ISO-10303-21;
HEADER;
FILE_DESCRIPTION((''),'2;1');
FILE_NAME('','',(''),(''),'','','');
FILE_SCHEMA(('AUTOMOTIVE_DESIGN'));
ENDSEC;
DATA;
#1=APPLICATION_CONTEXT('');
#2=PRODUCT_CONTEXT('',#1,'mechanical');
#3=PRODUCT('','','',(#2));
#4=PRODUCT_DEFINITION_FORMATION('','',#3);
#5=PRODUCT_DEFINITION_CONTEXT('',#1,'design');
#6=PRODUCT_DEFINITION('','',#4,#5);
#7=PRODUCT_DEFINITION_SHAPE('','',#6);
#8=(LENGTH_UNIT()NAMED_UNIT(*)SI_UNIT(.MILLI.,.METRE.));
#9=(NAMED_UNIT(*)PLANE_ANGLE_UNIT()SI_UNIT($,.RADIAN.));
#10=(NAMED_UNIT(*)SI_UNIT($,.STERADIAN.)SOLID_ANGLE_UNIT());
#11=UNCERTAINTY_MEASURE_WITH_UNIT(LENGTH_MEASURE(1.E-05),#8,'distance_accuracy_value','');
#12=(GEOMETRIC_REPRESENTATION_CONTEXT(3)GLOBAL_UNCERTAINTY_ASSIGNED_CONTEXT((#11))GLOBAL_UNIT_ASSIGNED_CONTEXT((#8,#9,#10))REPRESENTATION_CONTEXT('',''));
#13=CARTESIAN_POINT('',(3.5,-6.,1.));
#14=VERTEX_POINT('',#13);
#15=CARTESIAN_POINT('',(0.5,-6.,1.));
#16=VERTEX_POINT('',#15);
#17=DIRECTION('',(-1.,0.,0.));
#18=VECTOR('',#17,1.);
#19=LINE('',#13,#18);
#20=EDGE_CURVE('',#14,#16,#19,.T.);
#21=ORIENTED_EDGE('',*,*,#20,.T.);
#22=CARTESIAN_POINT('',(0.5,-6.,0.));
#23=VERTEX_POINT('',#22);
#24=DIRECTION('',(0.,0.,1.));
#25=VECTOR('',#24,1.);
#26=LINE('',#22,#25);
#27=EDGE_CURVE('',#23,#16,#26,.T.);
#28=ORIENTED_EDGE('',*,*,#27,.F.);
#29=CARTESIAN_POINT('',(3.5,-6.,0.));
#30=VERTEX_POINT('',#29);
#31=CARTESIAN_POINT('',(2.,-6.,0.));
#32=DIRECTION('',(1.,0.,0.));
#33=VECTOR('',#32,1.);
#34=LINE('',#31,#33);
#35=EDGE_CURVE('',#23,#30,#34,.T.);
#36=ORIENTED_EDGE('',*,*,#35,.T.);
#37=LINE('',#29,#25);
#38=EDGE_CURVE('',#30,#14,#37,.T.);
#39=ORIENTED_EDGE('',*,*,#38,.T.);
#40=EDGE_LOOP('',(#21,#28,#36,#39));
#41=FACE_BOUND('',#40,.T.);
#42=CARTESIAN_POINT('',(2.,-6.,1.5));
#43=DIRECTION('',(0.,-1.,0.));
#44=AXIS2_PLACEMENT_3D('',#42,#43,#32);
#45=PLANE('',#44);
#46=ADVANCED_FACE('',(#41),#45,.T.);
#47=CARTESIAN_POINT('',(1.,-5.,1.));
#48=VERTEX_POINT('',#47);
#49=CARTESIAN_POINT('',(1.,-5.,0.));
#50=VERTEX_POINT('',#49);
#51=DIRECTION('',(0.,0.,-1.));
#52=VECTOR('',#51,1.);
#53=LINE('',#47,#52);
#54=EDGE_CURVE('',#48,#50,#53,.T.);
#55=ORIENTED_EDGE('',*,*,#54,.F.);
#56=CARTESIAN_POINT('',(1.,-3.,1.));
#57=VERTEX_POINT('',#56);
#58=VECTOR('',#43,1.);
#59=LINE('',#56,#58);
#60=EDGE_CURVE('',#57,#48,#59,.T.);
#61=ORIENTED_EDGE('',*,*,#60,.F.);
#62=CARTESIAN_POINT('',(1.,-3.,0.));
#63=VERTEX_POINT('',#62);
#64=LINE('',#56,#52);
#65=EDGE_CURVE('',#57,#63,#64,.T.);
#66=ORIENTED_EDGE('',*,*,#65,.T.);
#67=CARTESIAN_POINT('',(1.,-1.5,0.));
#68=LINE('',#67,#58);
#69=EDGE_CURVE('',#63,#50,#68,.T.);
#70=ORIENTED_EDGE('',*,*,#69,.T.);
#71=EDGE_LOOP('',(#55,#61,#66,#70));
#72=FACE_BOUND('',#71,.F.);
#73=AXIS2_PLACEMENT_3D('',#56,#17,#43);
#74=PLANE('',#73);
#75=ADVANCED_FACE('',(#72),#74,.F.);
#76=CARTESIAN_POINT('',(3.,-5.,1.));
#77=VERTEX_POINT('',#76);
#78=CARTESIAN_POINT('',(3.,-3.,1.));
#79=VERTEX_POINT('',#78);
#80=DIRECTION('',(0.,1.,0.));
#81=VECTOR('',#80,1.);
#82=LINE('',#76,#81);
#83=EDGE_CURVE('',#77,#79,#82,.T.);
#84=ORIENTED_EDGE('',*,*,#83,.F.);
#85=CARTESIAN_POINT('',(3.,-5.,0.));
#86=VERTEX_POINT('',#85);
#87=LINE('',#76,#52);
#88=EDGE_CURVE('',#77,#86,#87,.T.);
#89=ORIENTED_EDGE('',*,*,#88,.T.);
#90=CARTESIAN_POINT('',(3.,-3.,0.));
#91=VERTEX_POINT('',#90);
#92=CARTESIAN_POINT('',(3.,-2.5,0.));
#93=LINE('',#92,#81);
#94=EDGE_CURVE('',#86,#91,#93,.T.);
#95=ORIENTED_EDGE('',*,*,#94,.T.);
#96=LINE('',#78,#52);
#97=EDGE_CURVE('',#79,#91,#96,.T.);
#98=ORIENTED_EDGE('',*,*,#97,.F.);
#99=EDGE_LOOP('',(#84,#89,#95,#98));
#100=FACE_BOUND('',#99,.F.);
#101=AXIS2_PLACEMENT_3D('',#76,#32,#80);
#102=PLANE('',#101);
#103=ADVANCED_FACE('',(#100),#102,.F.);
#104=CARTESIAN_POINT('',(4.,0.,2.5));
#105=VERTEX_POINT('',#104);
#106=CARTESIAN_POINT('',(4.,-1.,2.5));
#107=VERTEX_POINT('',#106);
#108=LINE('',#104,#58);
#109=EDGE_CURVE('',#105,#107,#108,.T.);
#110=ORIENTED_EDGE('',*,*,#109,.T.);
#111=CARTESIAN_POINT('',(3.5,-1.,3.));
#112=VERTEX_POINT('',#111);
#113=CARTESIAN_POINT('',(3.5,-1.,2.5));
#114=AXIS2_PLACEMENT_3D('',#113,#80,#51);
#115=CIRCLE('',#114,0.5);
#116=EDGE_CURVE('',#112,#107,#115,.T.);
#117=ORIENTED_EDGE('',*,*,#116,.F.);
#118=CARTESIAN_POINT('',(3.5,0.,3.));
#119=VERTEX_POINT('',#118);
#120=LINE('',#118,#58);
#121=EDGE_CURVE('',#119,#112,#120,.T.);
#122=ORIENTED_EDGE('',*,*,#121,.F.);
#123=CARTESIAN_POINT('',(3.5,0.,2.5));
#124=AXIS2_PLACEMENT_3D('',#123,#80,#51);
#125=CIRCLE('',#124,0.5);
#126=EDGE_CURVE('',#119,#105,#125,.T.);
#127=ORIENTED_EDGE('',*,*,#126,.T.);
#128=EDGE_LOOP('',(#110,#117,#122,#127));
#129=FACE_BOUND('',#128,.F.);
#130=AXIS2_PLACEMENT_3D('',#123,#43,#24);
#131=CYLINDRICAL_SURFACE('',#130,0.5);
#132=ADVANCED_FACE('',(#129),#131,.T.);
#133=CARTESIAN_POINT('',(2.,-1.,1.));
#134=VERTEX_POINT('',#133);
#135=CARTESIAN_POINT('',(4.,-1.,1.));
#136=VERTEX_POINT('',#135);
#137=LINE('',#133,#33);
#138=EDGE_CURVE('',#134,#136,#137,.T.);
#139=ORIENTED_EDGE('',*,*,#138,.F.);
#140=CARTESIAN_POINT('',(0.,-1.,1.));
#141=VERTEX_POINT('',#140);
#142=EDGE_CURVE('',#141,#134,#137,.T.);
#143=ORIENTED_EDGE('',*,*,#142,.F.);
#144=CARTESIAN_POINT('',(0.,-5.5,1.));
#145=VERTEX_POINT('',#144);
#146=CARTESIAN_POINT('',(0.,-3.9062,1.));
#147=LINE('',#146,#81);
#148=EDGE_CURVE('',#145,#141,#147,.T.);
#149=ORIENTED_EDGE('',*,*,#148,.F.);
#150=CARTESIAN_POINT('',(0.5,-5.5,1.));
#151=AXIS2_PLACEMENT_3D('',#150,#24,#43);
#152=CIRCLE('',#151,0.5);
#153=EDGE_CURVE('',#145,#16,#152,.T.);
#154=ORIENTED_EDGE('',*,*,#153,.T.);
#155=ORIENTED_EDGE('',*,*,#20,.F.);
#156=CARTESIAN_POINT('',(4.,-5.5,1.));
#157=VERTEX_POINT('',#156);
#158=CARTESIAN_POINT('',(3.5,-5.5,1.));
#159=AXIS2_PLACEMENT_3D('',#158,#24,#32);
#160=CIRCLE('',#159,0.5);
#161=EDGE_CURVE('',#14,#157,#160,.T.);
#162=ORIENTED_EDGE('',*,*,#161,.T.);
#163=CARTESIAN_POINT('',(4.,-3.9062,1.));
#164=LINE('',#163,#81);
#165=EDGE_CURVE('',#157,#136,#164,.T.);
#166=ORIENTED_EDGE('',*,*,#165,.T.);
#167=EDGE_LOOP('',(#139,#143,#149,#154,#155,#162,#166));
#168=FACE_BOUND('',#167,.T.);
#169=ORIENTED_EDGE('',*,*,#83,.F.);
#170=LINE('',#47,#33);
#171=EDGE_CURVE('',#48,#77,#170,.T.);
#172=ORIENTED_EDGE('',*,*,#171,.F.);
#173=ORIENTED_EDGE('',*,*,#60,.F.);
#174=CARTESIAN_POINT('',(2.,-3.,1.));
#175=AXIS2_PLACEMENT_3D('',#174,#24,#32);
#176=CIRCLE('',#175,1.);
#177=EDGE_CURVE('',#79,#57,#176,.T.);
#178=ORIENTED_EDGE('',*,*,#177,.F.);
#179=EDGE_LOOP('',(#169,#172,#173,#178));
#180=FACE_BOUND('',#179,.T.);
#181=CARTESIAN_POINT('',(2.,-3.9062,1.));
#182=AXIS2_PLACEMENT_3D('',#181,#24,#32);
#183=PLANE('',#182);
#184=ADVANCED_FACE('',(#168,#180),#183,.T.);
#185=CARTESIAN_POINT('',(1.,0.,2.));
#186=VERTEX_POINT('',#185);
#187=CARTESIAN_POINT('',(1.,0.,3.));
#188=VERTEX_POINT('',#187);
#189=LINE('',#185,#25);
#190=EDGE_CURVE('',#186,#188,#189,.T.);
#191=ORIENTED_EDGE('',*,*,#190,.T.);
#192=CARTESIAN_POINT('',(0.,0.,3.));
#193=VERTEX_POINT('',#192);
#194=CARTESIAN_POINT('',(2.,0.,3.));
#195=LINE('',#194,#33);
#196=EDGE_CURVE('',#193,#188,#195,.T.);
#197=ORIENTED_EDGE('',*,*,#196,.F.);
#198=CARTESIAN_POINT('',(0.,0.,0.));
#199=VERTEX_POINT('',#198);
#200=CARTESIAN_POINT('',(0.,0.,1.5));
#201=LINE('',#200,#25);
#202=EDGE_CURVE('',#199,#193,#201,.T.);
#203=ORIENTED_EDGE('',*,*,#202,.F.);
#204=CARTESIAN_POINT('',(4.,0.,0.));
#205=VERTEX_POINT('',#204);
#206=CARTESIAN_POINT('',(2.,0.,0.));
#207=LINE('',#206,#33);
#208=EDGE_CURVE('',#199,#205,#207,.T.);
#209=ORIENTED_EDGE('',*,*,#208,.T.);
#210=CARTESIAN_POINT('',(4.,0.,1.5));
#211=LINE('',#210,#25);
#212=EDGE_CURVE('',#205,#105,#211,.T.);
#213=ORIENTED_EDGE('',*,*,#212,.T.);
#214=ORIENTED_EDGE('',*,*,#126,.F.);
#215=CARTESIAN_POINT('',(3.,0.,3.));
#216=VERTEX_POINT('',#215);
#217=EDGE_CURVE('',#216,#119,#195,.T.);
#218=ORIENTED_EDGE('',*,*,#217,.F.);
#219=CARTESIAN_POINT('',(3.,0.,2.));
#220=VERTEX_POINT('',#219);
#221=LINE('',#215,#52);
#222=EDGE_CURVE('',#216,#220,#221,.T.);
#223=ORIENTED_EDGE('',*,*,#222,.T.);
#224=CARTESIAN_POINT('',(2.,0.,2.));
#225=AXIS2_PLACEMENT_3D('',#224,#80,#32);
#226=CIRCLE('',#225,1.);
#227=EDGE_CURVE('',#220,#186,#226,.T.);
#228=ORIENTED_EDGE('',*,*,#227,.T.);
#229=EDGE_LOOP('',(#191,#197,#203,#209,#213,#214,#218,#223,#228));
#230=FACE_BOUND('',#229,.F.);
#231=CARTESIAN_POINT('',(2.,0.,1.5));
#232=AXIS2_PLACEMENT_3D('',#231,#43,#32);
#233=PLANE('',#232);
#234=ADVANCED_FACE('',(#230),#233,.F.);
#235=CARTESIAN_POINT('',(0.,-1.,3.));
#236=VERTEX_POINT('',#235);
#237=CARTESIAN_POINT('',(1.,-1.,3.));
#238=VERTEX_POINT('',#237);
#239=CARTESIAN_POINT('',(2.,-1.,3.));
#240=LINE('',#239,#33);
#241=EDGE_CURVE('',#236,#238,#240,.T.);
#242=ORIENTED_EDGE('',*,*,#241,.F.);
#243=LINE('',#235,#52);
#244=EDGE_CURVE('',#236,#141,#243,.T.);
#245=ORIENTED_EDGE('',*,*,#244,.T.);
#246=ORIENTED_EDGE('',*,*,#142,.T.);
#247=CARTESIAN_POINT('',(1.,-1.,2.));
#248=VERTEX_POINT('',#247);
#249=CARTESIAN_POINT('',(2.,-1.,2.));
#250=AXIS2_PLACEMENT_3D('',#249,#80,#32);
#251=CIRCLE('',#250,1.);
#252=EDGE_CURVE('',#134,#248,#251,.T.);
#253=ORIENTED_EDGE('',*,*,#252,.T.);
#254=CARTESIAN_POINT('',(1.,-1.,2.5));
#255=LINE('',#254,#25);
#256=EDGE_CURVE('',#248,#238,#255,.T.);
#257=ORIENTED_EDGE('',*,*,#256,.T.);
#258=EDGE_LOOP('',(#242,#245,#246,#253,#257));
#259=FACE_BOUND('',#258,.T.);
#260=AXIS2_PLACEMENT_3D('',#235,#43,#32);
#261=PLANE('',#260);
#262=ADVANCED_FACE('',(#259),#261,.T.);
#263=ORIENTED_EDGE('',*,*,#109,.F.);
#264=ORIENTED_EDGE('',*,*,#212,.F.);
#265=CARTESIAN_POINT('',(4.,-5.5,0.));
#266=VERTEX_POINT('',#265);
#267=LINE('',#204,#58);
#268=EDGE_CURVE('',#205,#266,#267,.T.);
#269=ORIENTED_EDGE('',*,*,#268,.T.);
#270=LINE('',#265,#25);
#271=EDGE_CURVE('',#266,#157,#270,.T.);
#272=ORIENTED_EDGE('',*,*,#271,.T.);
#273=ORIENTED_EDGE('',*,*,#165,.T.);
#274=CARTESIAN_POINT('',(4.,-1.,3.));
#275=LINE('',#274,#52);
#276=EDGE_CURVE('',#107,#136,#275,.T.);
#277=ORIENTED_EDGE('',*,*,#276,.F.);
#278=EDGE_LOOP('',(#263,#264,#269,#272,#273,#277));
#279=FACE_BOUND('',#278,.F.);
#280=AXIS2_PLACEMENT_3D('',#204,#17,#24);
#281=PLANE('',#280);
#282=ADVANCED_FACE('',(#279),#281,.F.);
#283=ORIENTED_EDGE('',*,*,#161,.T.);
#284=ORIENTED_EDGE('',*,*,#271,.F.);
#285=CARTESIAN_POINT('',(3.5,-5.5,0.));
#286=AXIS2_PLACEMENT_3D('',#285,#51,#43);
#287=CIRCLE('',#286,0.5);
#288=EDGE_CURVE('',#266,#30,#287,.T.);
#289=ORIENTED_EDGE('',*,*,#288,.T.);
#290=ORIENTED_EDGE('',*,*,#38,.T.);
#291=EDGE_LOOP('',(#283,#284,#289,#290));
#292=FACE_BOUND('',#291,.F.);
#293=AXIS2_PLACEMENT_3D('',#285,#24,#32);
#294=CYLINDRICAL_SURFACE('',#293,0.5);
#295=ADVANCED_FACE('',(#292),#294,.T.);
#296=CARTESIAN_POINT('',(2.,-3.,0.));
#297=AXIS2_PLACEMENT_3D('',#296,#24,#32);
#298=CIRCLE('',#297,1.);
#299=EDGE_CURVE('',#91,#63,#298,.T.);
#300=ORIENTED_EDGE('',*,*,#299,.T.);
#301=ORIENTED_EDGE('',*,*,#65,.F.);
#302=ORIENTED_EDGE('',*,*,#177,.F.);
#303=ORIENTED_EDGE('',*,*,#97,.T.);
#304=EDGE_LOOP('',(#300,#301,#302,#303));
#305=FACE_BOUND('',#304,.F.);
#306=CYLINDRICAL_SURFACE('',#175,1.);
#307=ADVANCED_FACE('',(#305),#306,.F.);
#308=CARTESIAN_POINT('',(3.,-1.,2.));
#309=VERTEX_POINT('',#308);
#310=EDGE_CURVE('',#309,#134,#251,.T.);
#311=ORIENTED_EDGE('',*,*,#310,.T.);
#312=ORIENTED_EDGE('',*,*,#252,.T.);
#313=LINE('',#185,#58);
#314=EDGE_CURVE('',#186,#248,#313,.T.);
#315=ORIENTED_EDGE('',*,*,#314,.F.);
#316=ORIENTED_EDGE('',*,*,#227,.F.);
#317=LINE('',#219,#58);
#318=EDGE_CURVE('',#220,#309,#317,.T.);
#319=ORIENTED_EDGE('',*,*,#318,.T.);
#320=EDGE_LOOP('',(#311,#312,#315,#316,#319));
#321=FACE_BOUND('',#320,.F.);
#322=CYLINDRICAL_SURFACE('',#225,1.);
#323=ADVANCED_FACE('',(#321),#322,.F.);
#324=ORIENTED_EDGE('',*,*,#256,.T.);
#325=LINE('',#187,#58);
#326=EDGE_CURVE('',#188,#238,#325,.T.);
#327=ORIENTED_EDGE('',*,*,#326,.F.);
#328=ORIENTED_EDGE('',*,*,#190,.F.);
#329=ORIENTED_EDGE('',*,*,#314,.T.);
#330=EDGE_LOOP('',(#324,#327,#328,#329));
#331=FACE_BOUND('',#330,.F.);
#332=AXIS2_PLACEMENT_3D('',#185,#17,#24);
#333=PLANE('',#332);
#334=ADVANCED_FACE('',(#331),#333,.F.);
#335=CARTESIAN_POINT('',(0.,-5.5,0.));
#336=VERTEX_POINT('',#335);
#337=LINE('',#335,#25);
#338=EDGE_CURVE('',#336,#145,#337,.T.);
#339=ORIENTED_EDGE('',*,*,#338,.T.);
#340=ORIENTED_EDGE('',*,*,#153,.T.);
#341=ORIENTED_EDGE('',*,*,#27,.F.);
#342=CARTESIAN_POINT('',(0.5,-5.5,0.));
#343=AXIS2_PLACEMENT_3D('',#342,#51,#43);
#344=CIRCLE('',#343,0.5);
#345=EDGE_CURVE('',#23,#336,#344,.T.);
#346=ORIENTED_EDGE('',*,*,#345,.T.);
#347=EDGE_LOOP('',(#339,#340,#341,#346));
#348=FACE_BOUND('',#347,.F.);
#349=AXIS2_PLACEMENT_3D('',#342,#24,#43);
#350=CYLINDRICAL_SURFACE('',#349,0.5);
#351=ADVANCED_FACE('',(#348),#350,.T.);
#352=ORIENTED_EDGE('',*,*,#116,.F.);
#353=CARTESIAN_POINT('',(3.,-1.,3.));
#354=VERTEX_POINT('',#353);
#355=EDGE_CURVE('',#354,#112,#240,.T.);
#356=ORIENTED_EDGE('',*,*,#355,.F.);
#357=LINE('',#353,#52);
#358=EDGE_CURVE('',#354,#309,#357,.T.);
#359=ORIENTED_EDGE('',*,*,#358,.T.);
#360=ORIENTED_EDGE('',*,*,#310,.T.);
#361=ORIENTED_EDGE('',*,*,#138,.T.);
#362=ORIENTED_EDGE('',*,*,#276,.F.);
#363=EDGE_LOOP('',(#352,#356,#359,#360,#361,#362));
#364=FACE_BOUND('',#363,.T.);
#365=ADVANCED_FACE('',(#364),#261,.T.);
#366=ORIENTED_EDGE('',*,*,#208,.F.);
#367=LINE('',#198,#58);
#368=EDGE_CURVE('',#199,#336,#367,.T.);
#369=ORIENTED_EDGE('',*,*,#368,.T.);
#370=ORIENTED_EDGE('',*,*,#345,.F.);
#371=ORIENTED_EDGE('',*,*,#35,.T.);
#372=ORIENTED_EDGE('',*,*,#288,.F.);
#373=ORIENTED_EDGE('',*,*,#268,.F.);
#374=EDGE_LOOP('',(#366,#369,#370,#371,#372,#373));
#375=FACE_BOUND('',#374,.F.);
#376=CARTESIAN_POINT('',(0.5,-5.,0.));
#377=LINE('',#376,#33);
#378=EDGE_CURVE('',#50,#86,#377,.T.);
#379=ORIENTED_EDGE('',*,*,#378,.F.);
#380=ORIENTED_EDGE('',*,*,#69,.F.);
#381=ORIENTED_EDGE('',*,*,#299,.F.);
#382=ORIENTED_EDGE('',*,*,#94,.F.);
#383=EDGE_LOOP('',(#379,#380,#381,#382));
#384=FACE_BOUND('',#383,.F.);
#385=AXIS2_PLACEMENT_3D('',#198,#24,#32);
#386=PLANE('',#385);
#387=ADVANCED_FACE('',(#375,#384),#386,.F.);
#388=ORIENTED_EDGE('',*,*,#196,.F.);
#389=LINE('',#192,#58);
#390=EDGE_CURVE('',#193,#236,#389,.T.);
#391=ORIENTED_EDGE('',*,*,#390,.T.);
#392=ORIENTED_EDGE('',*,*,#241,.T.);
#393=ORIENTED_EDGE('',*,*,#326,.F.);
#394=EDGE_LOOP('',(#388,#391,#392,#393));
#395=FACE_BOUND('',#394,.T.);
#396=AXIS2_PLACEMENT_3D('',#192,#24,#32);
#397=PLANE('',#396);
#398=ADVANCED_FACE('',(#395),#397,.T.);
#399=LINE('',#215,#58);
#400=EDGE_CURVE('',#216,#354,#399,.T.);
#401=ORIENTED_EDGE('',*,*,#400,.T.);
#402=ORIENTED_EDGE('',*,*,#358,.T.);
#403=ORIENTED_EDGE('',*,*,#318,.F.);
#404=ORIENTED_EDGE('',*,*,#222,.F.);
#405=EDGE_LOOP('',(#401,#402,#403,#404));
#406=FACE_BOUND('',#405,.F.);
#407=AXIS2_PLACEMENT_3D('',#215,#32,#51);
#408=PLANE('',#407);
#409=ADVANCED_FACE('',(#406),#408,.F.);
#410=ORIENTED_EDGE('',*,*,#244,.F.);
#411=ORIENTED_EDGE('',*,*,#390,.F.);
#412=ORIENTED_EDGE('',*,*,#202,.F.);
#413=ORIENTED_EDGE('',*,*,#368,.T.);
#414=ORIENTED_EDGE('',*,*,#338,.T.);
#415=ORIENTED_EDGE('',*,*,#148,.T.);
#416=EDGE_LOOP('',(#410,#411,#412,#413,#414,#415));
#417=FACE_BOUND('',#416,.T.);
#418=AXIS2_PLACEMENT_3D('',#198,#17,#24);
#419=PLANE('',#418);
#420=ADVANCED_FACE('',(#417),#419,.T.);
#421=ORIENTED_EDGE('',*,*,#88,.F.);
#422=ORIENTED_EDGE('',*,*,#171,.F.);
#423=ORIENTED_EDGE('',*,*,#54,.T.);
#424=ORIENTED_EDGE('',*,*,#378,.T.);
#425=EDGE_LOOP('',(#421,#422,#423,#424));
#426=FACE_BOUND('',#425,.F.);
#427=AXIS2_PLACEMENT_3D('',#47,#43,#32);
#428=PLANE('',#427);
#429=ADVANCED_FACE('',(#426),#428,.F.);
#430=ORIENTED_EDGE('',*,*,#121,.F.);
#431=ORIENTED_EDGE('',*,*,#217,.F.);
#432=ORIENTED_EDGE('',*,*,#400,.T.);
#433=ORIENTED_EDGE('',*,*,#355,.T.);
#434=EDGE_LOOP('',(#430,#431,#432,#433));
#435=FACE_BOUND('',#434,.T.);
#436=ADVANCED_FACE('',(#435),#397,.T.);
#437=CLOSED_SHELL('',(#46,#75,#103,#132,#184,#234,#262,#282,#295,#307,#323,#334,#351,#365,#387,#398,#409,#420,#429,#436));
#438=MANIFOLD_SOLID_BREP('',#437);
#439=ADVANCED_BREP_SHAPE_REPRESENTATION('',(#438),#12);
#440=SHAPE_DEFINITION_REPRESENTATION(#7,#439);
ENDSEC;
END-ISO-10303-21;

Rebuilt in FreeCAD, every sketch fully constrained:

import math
import FreeCAD as App
import Part
import Sketcher
Q = App.Units.Quantity


def edges_at(feature, points):
    """Names of the edges that pass closest to the given points."""
    edges = feature.Shape.Edges
    near = lambda p: min(range(len(edges)), key=lambda i: edges[i].distToShape(Part.Vertex(*p))[0])
    return sorted({f"Edge{near(p) + 1}" for p in points})

doc = App.newDocument("Part")
body = doc.addObject("PartDesign::Body", "Body")

# Sketch on XZ plane
sketch1 = body.newObject("Sketcher::SketchObject", "Sketch")
sketch1.AttachmentSupport = (doc.getObject("XZ_Plane"), [""])
sketch1.MapMode = "FlatFace"
sketch1.addGeometry([
    Part.LineSegment(App.Vector(0, 3, 0), App.Vector(0, 0, 0)),
    Part.LineSegment(App.Vector(0, 0, 0), App.Vector(4, 0, 0)),
    Part.LineSegment(App.Vector(4, 0, 0), App.Vector(4, 3, 0)),
    Part.LineSegment(App.Vector(4, 3, 0), App.Vector(0, 3, 0)),
], False)
sketch1.addConstraint([
    Sketcher.Constraint("Coincident", 0, 2, 1, 1),
    Sketcher.Constraint("Coincident", 1, 2, 2, 1),
    Sketcher.Constraint("Coincident", 2, 2, 3, 1),
    Sketcher.Constraint("Coincident", 3, 2, 0, 1),
    Sketcher.Constraint("Vertical", 0),
    Sketcher.Constraint("Horizontal", 1),
    Sketcher.Constraint("Vertical", 2),
    Sketcher.Constraint("Horizontal", 3),
    Sketcher.Constraint("Coincident", 0, 2, -1, 1),
    Sketcher.Constraint("DistanceX", 1, 1, 1, 2, Q("4 mm")),
    Sketcher.Constraint("DistanceY", 0, 2, 0, 1, Q("3 mm")),
])
pad1 = body.newObject("PartDesign::Pad", "Pad")
pad1.Profile = sketch1
pad1.Length = 6
doc.recompute()

fillet = body.newObject("PartDesign::Fillet", "Fillet")
fillet.Base = (pad1, edges_at(pad1, [(4, -6, 1.5)]))
fillet.Radius = 0.5
doc.recompute()

fillet2 = body.newObject("PartDesign::Fillet", "Fillet001")
fillet2.Base = (fillet, edges_at(fillet, [(0, -6, 1.5)]))
fillet2.Radius = 0.5

# Sketch on XZ plane
sketch2 = body.newObject("Sketcher::SketchObject", "Sketch001")
sketch2.AttachmentSupport = (doc.getObject("XZ_Plane"), [""])
sketch2.MapMode = "FlatFace"
sketch2.addGeometry([
    Part.LineSegment(App.Vector(3, 3, 0), App.Vector(3, 2, 0)),
    Part.ArcOfCircle(Part.Circle(App.Vector(2, 2, 0), App.Vector(0, 0, 1), 1), math.radians(180), math.radians(360)),
    Part.LineSegment(App.Vector(1, 2, 0), App.Vector(1, 3, 0)),
    Part.LineSegment(App.Vector(1, 3, 0), App.Vector(3, 3, 0)),
], False)
sketch2.addConstraint([
    Sketcher.Constraint("Tangent", 0, 2, 1, 2),
    Sketcher.Constraint("Tangent", 1, 1, 2, 1),
    Sketcher.Constraint("Coincident", 2, 2, 3, 1),
    Sketcher.Constraint("Coincident", 3, 2, 0, 1),
    Sketcher.Constraint("Vertical", 0),
    Sketcher.Constraint("Vertical", 2),
    Sketcher.Constraint("Horizontal", 3),
    Sketcher.Constraint("Radius", 1, Q("1 mm")),
    Sketcher.Constraint("DistanceY", 0, 2, 0, 1, Q("1 mm")),
    Sketcher.Constraint("DistanceX", -1, 1, 1, 3, Q("2 mm")),
    Sketcher.Constraint("DistanceY", -1, 1, 1, 3, Q("2 mm")),
])
pocket1 = body.newObject("PartDesign::Pocket", "Pocket")
pocket1.Profile = sketch2
pocket1.Length = 25
pocket1.Reversed = True

# Sketch on XY plane
sketch3 = body.newObject("Sketcher::SketchObject", "Sketch002")
sketch3.AttachmentSupport = (doc.getObject("XY_Plane"), [""])
sketch3.MapMode = "FlatFace"
sketch3.AttachmentOffset = App.Placement(App.Vector(0, 0, 3), App.Rotation())
sketch3.addGeometry([
    Part.LineSegment(App.Vector(0, -1, 0), App.Vector(0, -6.8, 0)),
    Part.LineSegment(App.Vector(0, -6.8, 0), App.Vector(4, -6.8, 0)),
    Part.LineSegment(App.Vector(4, -6.8, 0), App.Vector(4, -1, 0)),
    Part.LineSegment(App.Vector(4, -1, 0), App.Vector(0, -1, 0)),
], False)
sketch3.addConstraint([
    Sketcher.Constraint("Coincident", 0, 2, 1, 1),
    Sketcher.Constraint("Coincident", 1, 2, 2, 1),
    Sketcher.Constraint("Coincident", 2, 2, 3, 1),
    Sketcher.Constraint("Coincident", 3, 2, 0, 1),
    Sketcher.Constraint("Vertical", 0),
    Sketcher.Constraint("Horizontal", 1),
    Sketcher.Constraint("Vertical", 2),
    Sketcher.Constraint("Horizontal", 3),
    Sketcher.Constraint("PointOnObject", 0, 2, -2),
    Sketcher.Constraint("DistanceX", 1, 1, 1, 2, Q("4 mm")),
    Sketcher.Constraint("DistanceY", 2, 2, -1, 1, Q("1 mm")),
    Sketcher.Constraint("DistanceY", 0, 2, 0, 1, Q("5.8124 mm")),
])
pocket2 = body.newObject("PartDesign::Pocket", "Pocket001")
pocket2.Profile = sketch3
pocket2.Length = 2
doc.recompute()

fillet3 = body.newObject("PartDesign::Fillet", "Fillet002")
fillet3.Base = (pocket2, edges_at(pocket2, [(4, -0.5, 3)]))
fillet3.Radius = 0.5

# Sketch on XY plane
sketch4 = body.newObject("Sketcher::SketchObject", "Sketch003")
sketch4.AttachmentSupport = (doc.getObject("XY_Plane"), [""])
sketch4.MapMode = "FlatFace"
sketch4.AttachmentOffset = App.Placement(App.Vector(0, 0, 1), App.Rotation())
sketch4.addGeometry([
    Part.ArcOfCircle(Part.Circle(App.Vector(2, -3, 0), App.Vector(0, 0, 1), 1), math.radians(0), math.radians(180)),
    Part.LineSegment(App.Vector(1, -3, 0), App.Vector(1, -5, 0)),
    Part.LineSegment(App.Vector(1, -5, 0), App.Vector(3, -5, 0)),
    Part.LineSegment(App.Vector(3, -5, 0), App.Vector(3, -3, 0)),
], False)
sketch4.addConstraint([
    Sketcher.Constraint("Tangent", 0, 2, 1, 1),
    Sketcher.Constraint("Coincident", 1, 2, 2, 1),
    Sketcher.Constraint("Coincident", 2, 2, 3, 1),
    Sketcher.Constraint("Tangent", 3, 2, 0, 1),
    Sketcher.Constraint("Vertical", 1),
    Sketcher.Constraint("Horizontal", 2),
    Sketcher.Constraint("Vertical", 3),
    Sketcher.Constraint("Equal", 2, 1),
    Sketcher.Constraint("Radius", 0, Q("1 mm")),
    Sketcher.Constraint("DistanceX", -1, 1, 0, 3, Q("2 mm")),
    Sketcher.Constraint("DistanceY", 0, 3, -1, 1, Q("3 mm")),
])
pocket3 = body.newObject("PartDesign::Pocket", "Pocket002")
pocket3.Profile = sketch4
pocket3.Length = 25

doc.recompute()
